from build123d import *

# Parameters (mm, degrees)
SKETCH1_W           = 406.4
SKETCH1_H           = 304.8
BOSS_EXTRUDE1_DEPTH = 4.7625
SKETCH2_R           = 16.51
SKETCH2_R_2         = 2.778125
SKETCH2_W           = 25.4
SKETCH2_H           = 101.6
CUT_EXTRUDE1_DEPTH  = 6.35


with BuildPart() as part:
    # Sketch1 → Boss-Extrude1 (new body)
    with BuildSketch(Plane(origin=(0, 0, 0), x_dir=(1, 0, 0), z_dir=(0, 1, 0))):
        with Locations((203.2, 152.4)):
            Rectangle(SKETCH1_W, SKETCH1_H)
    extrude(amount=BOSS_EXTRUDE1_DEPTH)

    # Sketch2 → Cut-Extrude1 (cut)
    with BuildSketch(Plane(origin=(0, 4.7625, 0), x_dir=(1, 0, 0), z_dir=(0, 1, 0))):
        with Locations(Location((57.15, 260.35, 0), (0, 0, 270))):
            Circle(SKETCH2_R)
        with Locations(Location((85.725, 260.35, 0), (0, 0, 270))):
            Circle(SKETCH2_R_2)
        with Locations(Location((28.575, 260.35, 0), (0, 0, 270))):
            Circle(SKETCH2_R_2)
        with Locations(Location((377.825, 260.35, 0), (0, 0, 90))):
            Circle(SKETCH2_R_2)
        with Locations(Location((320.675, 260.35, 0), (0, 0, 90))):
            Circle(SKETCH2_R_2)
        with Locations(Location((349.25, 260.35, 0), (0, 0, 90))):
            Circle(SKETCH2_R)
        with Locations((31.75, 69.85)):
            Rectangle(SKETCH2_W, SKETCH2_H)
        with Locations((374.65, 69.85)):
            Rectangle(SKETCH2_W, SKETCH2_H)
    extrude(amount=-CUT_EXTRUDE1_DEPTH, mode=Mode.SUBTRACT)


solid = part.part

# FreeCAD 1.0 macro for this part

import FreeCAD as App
import Part
import Sketcher
Q = App.Units.Quantity


def add_polygon(sketch, points):
    """Adds a closed chain of lines whose ends are joined by coincident constraints."""
    first, n = sketch.GeometryCount, len(points)
    for a, b in zip(points, points[1:] + points[:1]):
        sketch.addGeometry(Part.LineSegment(App.Vector(*a, 0), App.Vector(*b, 0)), False)
    for i in range(n):
        sketch.addConstraint(Sketcher.Constraint("Coincident", first + i, 2, first + (i + 1) % n, 1))

doc = App.newDocument("Part")
body = doc.addObject("PartDesign::Body", "Body")

sketch1 = body.newObject("Sketcher::SketchObject", "Sketch")
sketch1.AttachmentSupport = (doc.getObject("XZ_Plane"), [""])
sketch1.MapMode = "FlatFace"
add_polygon(sketch1, [(0, -305), (0, 0), (406, 0), (406, -305)])
sketch1.addConstraint(Sketcher.Constraint("Vertical", 0))
sketch1.addConstraint(Sketcher.Constraint("Horizontal", 1))
sketch1.addConstraint(Sketcher.Constraint("Vertical", 2))
sketch1.addConstraint(Sketcher.Constraint("Horizontal", 3))
sketch1.addConstraint(Sketcher.Constraint("Coincident", 0, 2, -1, 1))
sketch1.addConstraint(Sketcher.Constraint("DistanceX", 1, 1, 1, 2, Q("16 in")))
sketch1.addConstraint(Sketcher.Constraint("DistanceY", 0, 1, 0, 2, Q("12 in")))
pad1 = body.newObject("PartDesign::Pad", "Pad")
pad1.Profile = sketch1
pad1.Length = Q("0.1875 in")
pad1.Reversed = True

sketch2 = body.newObject("Sketcher::SketchObject", "Sketch001")
sketch2.AttachmentSupport = (doc.getObject("XZ_Plane"), [""])
sketch2.MapMode = "FlatFace"
sketch2.AttachmentOffset = App.Placement(App.Vector(0, 0, -0.1875 * 25.4), App.Rotation())
sketch2.addGeometry(Part.Circle(App.Vector(57.1, -260.4, 0), App.Vector(0, 0, 1), 16.5), False)
sketch2.addGeometry(Part.Circle(App.Vector(85.7, -260.4, 0), App.Vector(0, 0, 1), 2.8), False)
sketch2.addGeometry(Part.Circle(App.Vector(28.6, -260.4, 0), App.Vector(0, 0, 1), 2.8), False)
sketch2.addGeometry(Part.Circle(App.Vector(377.8, -260.4, 0), App.Vector(0, 0, 1), 2.8), False)
sketch2.addGeometry(Part.Circle(App.Vector(320.7, -260.4, 0), App.Vector(0, 0, 1), 2.8), False)
sketch2.addGeometry(Part.Circle(App.Vector(349.2, -260.4, 0), App.Vector(0, 0, 1), 16.5), False)
add_polygon(sketch2, [(19.1, -120.7), (19.1, -19.1), (44.5, -19.1), (44.5, -120.7)])
add_polygon(sketch2, [(361.9, -120.7), (361.9, -19.1), (387.4, -19.1), (387.4, -120.7)])
sketch2.addConstraint(Sketcher.Constraint("Vertical", 6))
sketch2.addConstraint(Sketcher.Constraint("Horizontal", 7))
sketch2.addConstraint(Sketcher.Constraint("Vertical", 8))
sketch2.addConstraint(Sketcher.Constraint("Horizontal", 9))
sketch2.addConstraint(Sketcher.Constraint("Vertical", 10))
sketch2.addConstraint(Sketcher.Constraint("Horizontal", 11))
sketch2.addConstraint(Sketcher.Constraint("Vertical", 12))
sketch2.addConstraint(Sketcher.Constraint("Horizontal", 13))
sketch2.addConstraint(Sketcher.Constraint("Equal", 1, 2))
sketch2.addConstraint(Sketcher.Constraint("Equal", 2, 3))
sketch2.addConstraint(Sketcher.Constraint("Equal", 3, 4))
sketch2.addConstraint(Sketcher.Constraint("Equal", 0, 5))
sketch2.addConstraint(Sketcher.Constraint("Horizontal", 0, 3, 1, 3))
sketch2.addConstraint(Sketcher.Constraint("Horizontal", 1, 3, 2, 3))
sketch2.addConstraint(Sketcher.Constraint("Horizontal", 2, 3, 3, 3))
sketch2.addConstraint(Sketcher.Constraint("Horizontal", 3, 3, 4, 3))
sketch2.addConstraint(Sketcher.Constraint("Horizontal", 4, 3, 5, 3))
sketch2.addConstraint(Sketcher.Constraint("Horizontal", 7, 2, 10, 2))
sketch2.addConstraint(Sketcher.Constraint("Horizontal", 9, 2, 12, 2))
sketch2.addConstraint(Sketcher.Constraint("Equal", 9, 11))
sketch2.addConstraint(Sketcher.Constraint("Diameter", 0, Q("1.3 in")))
sketch2.addConstraint(Sketcher.Constraint("DistanceX", 7, 1, 7, 2, Q("1 in")))
sketch2.addConstraint(Sketcher.Constraint("DistanceY", 6, 1, 6, 2, Q("4 in")))
sketch2.addConstraint(Sketcher.Constraint("Diameter", 1, Q("0.21875 in")))
sketch2.addConstraint(Sketcher.Constraint("DistanceX", 6, 2, 5, 3, Q("13 in")))
sketch2.addConstraint(Sketcher.Constraint("DistanceX", 1, 3, 3, 3, Q("11.5 in")))
sketch2.addConstraint(Sketcher.Constraint("DistanceX", 2, 3, 4, 3, Q("11.5 in")))
sketch2.addConstraint(Sketcher.Constraint("DistanceX", 0, 3, 5, 3, Q("11.5 in")))
sketch2.addConstraint(Sketcher.Constraint("DistanceY", 2, 3, 6, 2, Q("9.5 in")))
sketch2.addConstraint(Sketcher.Constraint("DistanceX", 5, 3, 10, 2, Q("0.5 in")))
sketch2.addConstraint(Sketcher.Constraint("DistanceX", -1, 1, 0, 3, Q("2.25 in")))
sketch2.addConstraint(Sketcher.Constraint("DistanceY", 0, 3, -1, 1, Q("10.25 in")))
sketch2.addConstraint(Sketcher.Constraint("DistanceX", 2, 3, 1, 3, Q("2.25 in")))
sketch2.addConstraint(Sketcher.Constraint("DistanceX", -1, 1, 1, 3, Q("3.375 in")))
pocket1 = body.newObject("PartDesign::Pocket", "Pocket")
pocket1.Profile = sketch2
pocket1.Length = Q("0.25 in")
pocket1.Reversed = True

doc.recompute()
